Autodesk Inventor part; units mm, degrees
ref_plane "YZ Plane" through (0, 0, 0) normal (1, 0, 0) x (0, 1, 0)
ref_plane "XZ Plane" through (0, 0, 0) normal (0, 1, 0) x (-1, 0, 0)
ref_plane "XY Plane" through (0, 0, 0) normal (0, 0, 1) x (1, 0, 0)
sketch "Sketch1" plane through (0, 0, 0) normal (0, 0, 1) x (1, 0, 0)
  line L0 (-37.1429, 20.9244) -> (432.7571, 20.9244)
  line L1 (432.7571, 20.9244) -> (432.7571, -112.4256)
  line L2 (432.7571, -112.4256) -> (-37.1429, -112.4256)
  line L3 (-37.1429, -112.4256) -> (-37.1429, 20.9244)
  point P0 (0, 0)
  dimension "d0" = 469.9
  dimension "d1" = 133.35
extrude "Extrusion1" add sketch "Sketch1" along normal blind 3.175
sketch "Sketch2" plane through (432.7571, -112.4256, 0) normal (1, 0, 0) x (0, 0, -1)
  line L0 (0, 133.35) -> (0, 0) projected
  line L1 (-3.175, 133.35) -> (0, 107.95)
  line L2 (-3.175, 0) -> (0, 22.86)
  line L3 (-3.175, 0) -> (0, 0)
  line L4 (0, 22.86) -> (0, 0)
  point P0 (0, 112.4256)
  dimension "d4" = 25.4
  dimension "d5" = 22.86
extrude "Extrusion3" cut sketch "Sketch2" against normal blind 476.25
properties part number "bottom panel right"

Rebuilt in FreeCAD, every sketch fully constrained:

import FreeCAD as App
import Part
import Sketcher
Q = App.Units.Quantity


def add_polygon(sketch, points):
    """Adds a closed chain of lines whose ends are joined by coincident constraints."""
    first, n = sketch.GeometryCount, len(points)
    for a, b in zip(points, points[1:] + points[:1]):
        sketch.addGeometry(Part.LineSegment(App.Vector(*a, 0), App.Vector(*b, 0)), False)
    for i in range(n):
        sketch.addConstraint(Sketcher.Constraint("Coincident", first + i, 2, first + (i + 1) % n, 1))

doc = App.newDocument("Part")
body = doc.addObject("PartDesign::Body", "Body")

# Sketch on XY plane
sketch1 = body.newObject("Sketcher::SketchObject", "Sketch")
sketch1.AttachmentSupport = (doc.getObject("XY_Plane"), [""])
sketch1.MapMode = "FlatFace"
add_polygon(sketch1, [(433, 21), (-37, 21), (-37, -112), (433, -112)])  # lines 0-3
sketch1.addConstraint([
    Sketcher.Constraint("Horizontal", 0),
    Sketcher.Constraint("Vertical", 1),
    Sketcher.Constraint("Horizontal", 2),
    Sketcher.Constraint("Vertical", 3),
    Sketcher.Constraint("DistanceX", 0, 2, 0, 1, Q("18.5 in")),
    Sketcher.Constraint("DistanceY", 1, 2, 1, 1, Q("5.25 in")),
    Sketcher.Constraint("DistanceY", -1, 1, 0, 2, Q("0.8238 in")),
    Sketcher.Constraint("DistanceX", 0, 2, -1, 1, Q("37.143 mm")),
])
pad1 = body.newObject("PartDesign::Pad", "Pad")
pad1.Profile = sketch1
pad1.Length = Q("0.125 in")

# Sketch on YZ plane
sketch2 = body.newObject("Sketcher::SketchObject", "Sketch001")
sketch2.AttachmentSupport = (doc.getObject("YZ_Plane"), [""])
sketch2.MapMode = "FlatFace"
sketch2.AttachmentOffset = App.Placement(App.Vector(0, 0, 432.7571), App.Rotation())
add_polygon(sketch2, [(-112.4, 0), (-89.6, 0), (-112.4, 3.2)])  # lines 0-2
sketch2.addConstraint([
    Sketcher.Constraint("Horizontal", 0),
    Sketcher.Constraint("Vertical", 2),
    Sketcher.Constraint("PointOnObject", 0, 2, -1),
    Sketcher.Constraint("DistanceX", 0, 1, 0, 2, Q("0.9 in")),
    Sketcher.Constraint("DistanceY", 2, 2, 2, 1, Q("0.125 in")),
    Sketcher.Constraint("DistanceX", 0, 2, -1, 1, Q("3.5262 in")),
])
pocket1 = body.newObject("PartDesign::Pocket", "Pocket")
pocket1.Profile = sketch2
pocket1.Length = Q("18.75 in")

doc.recompute()
